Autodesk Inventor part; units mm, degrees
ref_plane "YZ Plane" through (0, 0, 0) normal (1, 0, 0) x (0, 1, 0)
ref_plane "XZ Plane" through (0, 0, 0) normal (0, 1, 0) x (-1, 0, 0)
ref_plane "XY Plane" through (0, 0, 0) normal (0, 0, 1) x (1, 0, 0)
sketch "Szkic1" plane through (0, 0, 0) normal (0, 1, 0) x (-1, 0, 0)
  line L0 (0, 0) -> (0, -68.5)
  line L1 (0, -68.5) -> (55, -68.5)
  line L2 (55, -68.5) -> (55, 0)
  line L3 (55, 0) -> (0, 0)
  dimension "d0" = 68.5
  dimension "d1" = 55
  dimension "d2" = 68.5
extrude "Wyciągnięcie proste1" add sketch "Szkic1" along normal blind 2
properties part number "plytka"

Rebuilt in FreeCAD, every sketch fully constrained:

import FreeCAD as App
import Part
import Sketcher


def add_polygon(sketch, points):
    """Adds a closed chain of lines whose ends are joined by coincident constraints."""
    first, n = sketch.GeometryCount, len(points)
    for a, b in zip(points, points[1:] + points[:1]):
        sketch.addGeometry(Part.LineSegment(App.Vector(*a, 0), App.Vector(*b, 0)), False)
    for i in range(n):
        sketch.addConstraint(Sketcher.Constraint("Coincident", first + i, 2, first + (i + 1) % n, 1))

doc = App.newDocument("Part")
body = doc.addObject("PartDesign::Body", "Body")

# Sketch on XZ plane
sketch1 = doc.addObject("Sketcher::SketchObject", "Sketch")
body.addObject(sketch1)
sketch1.AttachmentSupport = (doc.XZ_Plane, [""])
sketch1.MapMode = "FlatFace"
add_polygon(sketch1, [(-55, 0), (0, 0), (0, -68), (-55, -68)])  # lines 0-3
sketch1.addConstraint([
    Sketcher.Constraint("Horizontal", 0),
    Sketcher.Constraint("Vertical", 1),
    Sketcher.Constraint("Horizontal", 2),
    Sketcher.Constraint("Vertical", 3),
    Sketcher.Constraint("Coincident", 0, 2, -1, 1),
    Sketcher.Constraint("DistanceX", 0, 1, 0, 2, 55.0),
    Sketcher.Constraint("DistanceY", 1, 2, 1, 1, 68.5),
])
pad1 = doc.addObject("PartDesign::Pad", "Pad")
body.addObject(pad1)
pad1.Profile = sketch1
pad1.Length = 2
pad1.Reversed = True

doc.recompute()
